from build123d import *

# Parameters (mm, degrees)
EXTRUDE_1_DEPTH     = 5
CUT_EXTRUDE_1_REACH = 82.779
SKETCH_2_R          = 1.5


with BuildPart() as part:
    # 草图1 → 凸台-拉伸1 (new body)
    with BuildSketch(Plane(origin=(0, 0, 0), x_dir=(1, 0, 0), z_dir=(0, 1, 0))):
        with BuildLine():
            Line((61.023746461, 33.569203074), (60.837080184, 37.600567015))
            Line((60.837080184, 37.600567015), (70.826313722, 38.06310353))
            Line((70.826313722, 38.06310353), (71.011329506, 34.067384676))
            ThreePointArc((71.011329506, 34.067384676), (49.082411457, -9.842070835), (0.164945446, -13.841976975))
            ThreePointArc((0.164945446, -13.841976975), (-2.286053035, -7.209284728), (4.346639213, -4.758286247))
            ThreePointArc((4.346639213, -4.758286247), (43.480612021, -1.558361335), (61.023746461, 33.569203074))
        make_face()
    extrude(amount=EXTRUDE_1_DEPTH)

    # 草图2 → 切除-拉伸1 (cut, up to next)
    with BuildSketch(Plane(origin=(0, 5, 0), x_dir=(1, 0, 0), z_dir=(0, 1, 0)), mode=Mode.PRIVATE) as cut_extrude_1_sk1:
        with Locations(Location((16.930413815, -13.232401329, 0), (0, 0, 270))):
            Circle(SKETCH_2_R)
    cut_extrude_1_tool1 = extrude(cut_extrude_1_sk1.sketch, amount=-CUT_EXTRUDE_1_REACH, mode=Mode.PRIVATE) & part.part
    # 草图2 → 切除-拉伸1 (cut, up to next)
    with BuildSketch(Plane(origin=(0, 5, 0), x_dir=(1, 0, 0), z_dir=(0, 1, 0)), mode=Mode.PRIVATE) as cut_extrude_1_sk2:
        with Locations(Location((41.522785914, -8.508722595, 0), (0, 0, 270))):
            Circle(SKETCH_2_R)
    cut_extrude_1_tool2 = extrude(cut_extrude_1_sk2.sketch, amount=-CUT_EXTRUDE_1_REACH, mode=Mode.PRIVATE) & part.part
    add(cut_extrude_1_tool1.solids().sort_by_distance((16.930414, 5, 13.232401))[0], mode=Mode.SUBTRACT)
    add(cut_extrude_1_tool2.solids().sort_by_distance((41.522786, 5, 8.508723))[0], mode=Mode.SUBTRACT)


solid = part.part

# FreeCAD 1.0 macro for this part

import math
import FreeCAD as App
import Part
import Sketcher
from FreeCAD import Vector
Q = App.Units.Quantity

doc = App.newDocument("Part")
body = doc.addObject("PartDesign::Body", "Body")

# Sketch on XZ plane
sketch1 = doc.addObject("Sketcher::SketchObject", "Sketch")
body.addObject(sketch1)
sketch1.AttachmentSupport = (doc.XZ_Plane, [""])
sketch1.MapMode = "FlatFace"
sketch1.addGeometry(Part.LineSegment(Vector(60.83708, -37.600567, 0), Vector(61.023746, -33.569203, 0)), False)
sketch1.addGeometry(Part.ArcOfCircle(Part.Circle(Vector(21.073414, -31.576477, 0), Vector(0, 0, 1), 40), math.radians(-2.855552), math.radians(114.719066)), False)
sketch1.addGeometry(Part.ArcOfCircle(Part.Circle(Vector(2.255792, 9.300132, 0), Vector(0, 0, 1), 5), math.radians(114.719066), math.radians(294.719066)), False)
sketch1.addGeometry(Part.ArcOfCircle(Part.Circle(Vector(21.073414, -31.576477, 0), Vector(0, 0, 1), 50), math.radians(-2.855552), math.radians(114.719066)), False)
sketch1.addGeometry(Part.LineSegment(Vector(71.01133, -34.067385, 0), Vector(70.826314, -38.063104, 0)), False)
sketch1.addGeometry(Part.LineSegment(Vector(70.826314, -38.063104, 0), Vector(60.83708, -37.600567, 0)), False)
sketch1.addConstraint(Sketcher.Constraint("Coincident", 0, 2, 1, 1))
sketch1.addConstraint(Sketcher.Constraint("Tangent", 1, 2, 2, 2))
sketch1.addConstraint(Sketcher.Constraint("Tangent", 2, 1, 3, 2))
sketch1.addConstraint(Sketcher.Constraint("Coincident", 3, 1, 4, 1))
sketch1.addConstraint(Sketcher.Constraint("Coincident", 4, 2, 5, 1))
sketch1.addConstraint(Sketcher.Constraint("Coincident", 5, 2, 0, 1))
sketch1.addConstraint(Sketcher.Constraint("Coincident", 3, 3, 1, 3))
sketch1.addConstraint(Sketcher.Constraint("Parallel", 0, 4))
sketch1.addConstraint(Sketcher.Constraint("Perpendicular", 4, 5))
sketch1.addConstraint(Sketcher.Constraint("Radius", 1, Q("40 mm")))
sketch1.addConstraint(Sketcher.Constraint("Radius", 2, Q("5 mm")))
sketch1.addConstraint(Sketcher.Constraint("Distance", 4, Q("4 mm")))
sketch1.addConstraint(Sketcher.Constraint("DistanceX", 2, 1, 0, 2, Q("60.858801 mm")))
sketch1.addConstraint(Sketcher.Constraint("DistanceY", 4, 2, 0, 2, Q("4.4939 mm")))
sketch1.addConstraint(Sketcher.Constraint("DistanceX", 1, 3, 4, 2, Q("49.752899 mm")))
sketch1.addConstraint(Sketcher.Constraint("DistanceY", -1, 1, 2, 3, Q("9.300132 mm")))
sketch1.addConstraint(Sketcher.Constraint("DistanceX", -1, 1, 1, 2, Q("4.346639 mm")))
sketch1.addConstraint(Sketcher.Constraint("DistanceX", -1, 1, 5, 2, Q("60.83708 mm")))
pad1 = doc.addObject("PartDesign::Pad", "Pad")
body.addObject(pad1)
pad1.Profile = sketch1
pad1.Length = 5
pad1.Reversed = True

# Sketch on XZ plane
sketch2 = doc.addObject("Sketcher::SketchObject", "Sketch001")
body.addObject(sketch2)
sketch2.AttachmentSupport = (doc.XZ_Plane, [""])
sketch2.MapMode = "FlatFace"
sketch2.AttachmentOffset = App.Placement(Vector(0, 0, -5), App.Rotation())
sketch2.addGeometry(Part.Circle(Vector(16.930414, 13.232401, 0), Vector(0, 0, 1), 1.5), False)
sketch2.addConstraint(Sketcher.Constraint("Diameter", 0, Q("3 mm")))
sketch2.addConstraint(Sketcher.Constraint("DistanceY", -1, 1, 0, 3, Q("13.232401 mm")))
sketch2.addConstraint(Sketcher.Constraint("DistanceX", -1, 1, 0, 3, Q("16.930414 mm")))
pocket1 = doc.addObject("PartDesign::Pocket", "Pocket")
body.addObject(pocket1)
pocket1.Profile = sketch2
pocket1.Type = "UpToFirst"
pocket1.Reversed = True

# Sketch on XZ plane
sketch3 = doc.addObject("Sketcher::SketchObject", "Sketch002")
body.addObject(sketch3)
sketch3.AttachmentSupport = (doc.XZ_Plane, [""])
sketch3.MapMode = "FlatFace"
sketch3.AttachmentOffset = App.Placement(Vector(0, 0, -5), App.Rotation())
sketch3.addGeometry(Part.Circle(Vector(41.522786, 8.508723, 0), Vector(0, 0, 1), 1.5), False)
sketch3.addConstraint(Sketcher.Constraint("Diameter", 0, Q("3 mm")))
sketch3.addConstraint(Sketcher.Constraint("DistanceX", -1, 1, 0, 3, Q("41.522786 mm")))
sketch3.addConstraint(Sketcher.Constraint("DistanceY", -1, 1, 0, 3, Q("8.508723 mm")))
pocket2 = doc.addObject("PartDesign::Pocket", "Pocket001")
body.addObject(pocket2)
pocket2.Profile = sketch3
pocket2.Type = "UpToFirst"
pocket2.Reversed = True

doc.recompute()
